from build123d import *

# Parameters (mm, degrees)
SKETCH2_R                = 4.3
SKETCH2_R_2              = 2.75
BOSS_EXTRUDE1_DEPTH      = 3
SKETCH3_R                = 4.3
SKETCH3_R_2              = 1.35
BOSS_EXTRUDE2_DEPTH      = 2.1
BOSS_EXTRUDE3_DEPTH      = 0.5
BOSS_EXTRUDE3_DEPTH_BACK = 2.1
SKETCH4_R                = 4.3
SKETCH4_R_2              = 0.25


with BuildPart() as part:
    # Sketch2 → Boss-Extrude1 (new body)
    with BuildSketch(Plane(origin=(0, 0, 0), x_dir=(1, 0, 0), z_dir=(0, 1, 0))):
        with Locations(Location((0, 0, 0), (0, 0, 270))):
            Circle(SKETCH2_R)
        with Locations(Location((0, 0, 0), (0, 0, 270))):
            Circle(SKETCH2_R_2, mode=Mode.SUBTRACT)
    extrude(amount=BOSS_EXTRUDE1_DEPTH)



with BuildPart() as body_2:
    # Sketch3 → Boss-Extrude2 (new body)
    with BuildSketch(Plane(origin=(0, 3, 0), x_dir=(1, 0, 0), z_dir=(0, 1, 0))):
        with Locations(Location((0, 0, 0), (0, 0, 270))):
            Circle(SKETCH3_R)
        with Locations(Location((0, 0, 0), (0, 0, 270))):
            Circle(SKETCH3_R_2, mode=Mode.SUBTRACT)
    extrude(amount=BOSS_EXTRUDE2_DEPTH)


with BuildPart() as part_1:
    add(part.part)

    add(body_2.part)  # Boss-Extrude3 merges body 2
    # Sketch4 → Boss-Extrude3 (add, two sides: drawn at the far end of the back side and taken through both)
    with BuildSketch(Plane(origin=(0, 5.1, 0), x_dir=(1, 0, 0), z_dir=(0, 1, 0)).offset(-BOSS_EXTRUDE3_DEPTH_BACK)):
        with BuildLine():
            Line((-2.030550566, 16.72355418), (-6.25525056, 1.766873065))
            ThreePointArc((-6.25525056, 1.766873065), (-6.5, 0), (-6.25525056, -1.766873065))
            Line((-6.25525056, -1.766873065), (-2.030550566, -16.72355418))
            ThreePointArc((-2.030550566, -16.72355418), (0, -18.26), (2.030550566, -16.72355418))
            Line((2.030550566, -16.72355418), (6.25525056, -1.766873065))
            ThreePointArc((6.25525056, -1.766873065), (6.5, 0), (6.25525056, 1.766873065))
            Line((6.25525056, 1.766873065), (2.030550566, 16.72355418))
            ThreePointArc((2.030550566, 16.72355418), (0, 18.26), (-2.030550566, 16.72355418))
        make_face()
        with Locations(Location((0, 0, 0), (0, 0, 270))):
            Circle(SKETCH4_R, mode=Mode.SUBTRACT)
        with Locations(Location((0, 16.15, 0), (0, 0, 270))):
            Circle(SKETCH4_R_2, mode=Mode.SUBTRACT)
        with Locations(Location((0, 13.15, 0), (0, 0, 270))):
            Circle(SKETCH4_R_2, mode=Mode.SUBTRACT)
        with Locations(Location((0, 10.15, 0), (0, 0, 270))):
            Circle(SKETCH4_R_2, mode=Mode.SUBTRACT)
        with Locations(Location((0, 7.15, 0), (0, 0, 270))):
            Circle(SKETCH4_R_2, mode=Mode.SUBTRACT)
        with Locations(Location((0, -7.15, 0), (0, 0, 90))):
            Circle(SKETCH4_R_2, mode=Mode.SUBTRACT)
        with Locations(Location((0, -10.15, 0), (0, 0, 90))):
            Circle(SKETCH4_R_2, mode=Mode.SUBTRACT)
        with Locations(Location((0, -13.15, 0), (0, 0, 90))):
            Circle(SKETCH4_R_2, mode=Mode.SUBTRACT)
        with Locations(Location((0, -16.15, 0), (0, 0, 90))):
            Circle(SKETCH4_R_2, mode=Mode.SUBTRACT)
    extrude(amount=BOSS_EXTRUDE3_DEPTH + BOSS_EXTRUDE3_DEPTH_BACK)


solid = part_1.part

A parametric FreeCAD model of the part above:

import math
import FreeCAD as App
import Part
import Sketcher

V = App.Vector
Q = App.Units.Quantity

doc = App.newDocument("Part")
body = doc.addObject("PartDesign::Body", "Body")

# Sketch on XZ plane
sketch1 = body.newObject("Sketcher::SketchObject", "Sketch")
sketch1.AttachmentSupport = (doc.getObject("XZ_Plane"), [""])
sketch1.MapMode = "FlatFace"
sketch1.addGeometry([
    Part.Circle(V(0, 0, 0), V(0, 0, 1), 4.3),
    Part.Circle(V(0, 0, 0), V(0, 0, 1), 2.8),
], False)
sketch1.addConstraint([
    Sketcher.Constraint("Coincident", 0, 3, -1, 1),
    Sketcher.Constraint("Coincident", 1, 3, -1, 1),
    Sketcher.Constraint("Diameter", 0, Q("8.6 mm")),
    Sketcher.Constraint("Diameter", 1, Q("5.5 mm")),
])
pad1 = body.newObject("PartDesign::Pad", "Pad")
pad1.Profile = sketch1
pad1.Length = 3
pad1.Reversed = True
body2 = doc.addObject("PartDesign::Body", "Body001")

# Sketch on XZ plane
sketch2 = body2.newObject("Sketcher::SketchObject", "Sketch001")
sketch2.AttachmentSupport = (doc.getObject("XZ_Plane001"), [""])
sketch2.MapMode = "FlatFace"
sketch2.AttachmentOffset = App.Placement(V(0, 0, -3), App.Rotation())
sketch2.addGeometry([
    Part.Circle(V(0, 0, 0), V(0, 0, 1), 4.3),
    Part.Circle(V(0, 0, 0), V(0, 0, 1), 1.4),
], False)
sketch2.addConstraint([
    Sketcher.Constraint("Coincident", 0, 3, -1, 1),
    Sketcher.Constraint("Coincident", 1, 3, -1, 1),
    Sketcher.Constraint("Diameter", 0, Q("8.6 mm")),
    Sketcher.Constraint("Diameter", 1, Q("2.7 mm")),
])
pad2 = body2.newObject("PartDesign::Pad", "Pad001")
pad2.Profile = sketch2
pad2.Length = 2.1
pad2.Reversed = True
doc.recompute()

boolean = body.newObject("PartDesign::Boolean", "Boolean")
boolean.Type = "Fuse"
boolean.addObjects([body2])

# Sketch on XZ plane
sketch3 = body.newObject("Sketcher::SketchObject", "Sketch002")
sketch3.AttachmentSupport = (doc.getObject("XZ_Plane"), [""])
sketch3.MapMode = "FlatFace"
sketch3.AttachmentOffset = App.Placement(V(0, 0, -5.1), App.Rotation())
sketch3.addGeometry([
    Part.LineSegment(V(-2.03, -16.72, 0), V(-6.26, -1.77, 0)),  # 0
    Part.ArcOfCircle(Part.Circle(V(0, 0, 0), V(0, 0, 1), 6.5), math.radians(164), math.radians(196)),  # 1
    Part.LineSegment(V(-6.26, 1.77, 0), V(-2.03, 16.72, 0)),  # 2
    Part.ArcOfCircle(Part.Circle(V(0, 16.15, 0), V(0, 0, 1), 2.11), math.radians(16), math.radians(164)),  # 3
    Part.LineSegment(V(2.03, 16.72, 0), V(6.26, 1.77, 0)),  # 4
    Part.ArcOfCircle(Part.Circle(V(0, 0, 0), V(0, 0, 1), 6.5), math.radians(-16), math.radians(16)),  # 5
    Part.LineSegment(V(6.26, -1.77, 0), V(2.03, -16.72, 0)),  # 6
    Part.ArcOfCircle(Part.Circle(V(0, -16.15, 0), V(0, 0, 1), 2.11), math.radians(-164), math.radians(-16)),  # 7
    Part.Circle(V(0, 16.15, 0), V(0, 0, 1), 0.25),  # 8
    Part.Circle(V(0, 13.15, 0), V(0, 0, 1), 0.25),  # 9
    Part.Circle(V(0, 10.15, 0), V(0, 0, 1), 0.25),  # 10
    Part.Circle(V(0, 7.15, 0), V(0, 0, 1), 0.25),  # 11
    Part.Circle(V(0, 0, 0), V(0, 0, 1), 4.3),  # 12
    Part.Circle(V(0, -7.15, 0), V(0, 0, 1), 0.25),  # 13
    Part.Circle(V(0, -10.15, 0), V(0, 0, 1), 0.25),  # 14
    Part.Circle(V(0, -13.15, 0), V(0, 0, 1), 0.25),  # 15
    Part.Circle(V(0, -16.15, 0), V(0, 0, 1), 0.25),  # 16
], False)
sketch3.addConstraint([
    Sketcher.Constraint("Tangent", 0, 2, 1, 2),
    Sketcher.Constraint("Tangent", 1, 1, 2, 1),
    Sketcher.Constraint("Tangent", 2, 2, 3, 2),
    Sketcher.Constraint("Tangent", 3, 1, 4, 1),
    Sketcher.Constraint("Tangent", 4, 2, 5, 2),
    Sketcher.Constraint("Tangent", 5, 1, 6, 1),
    Sketcher.Constraint("Tangent", 6, 2, 7, 2),
    Sketcher.Constraint("Tangent", 7, 1, 0, 1),
    Sketcher.Constraint("Coincident", 1, 3, -1, 1),
    Sketcher.Constraint("Coincident", 5, 3, -1, 1),
    Sketcher.Constraint("Coincident", 12, 3, -1, 1),
    Sketcher.Constraint("Coincident", 8, 3, 3, 3),
    Sketcher.Constraint("Coincident", 16, 3, 7, 3),
    Sketcher.Constraint("Equal", 1, 5),
    Sketcher.Constraint("Equal", 3, 7),
    Sketcher.Constraint("Equal", 8, 9),
    Sketcher.Constraint("Equal", 9, 10),
    Sketcher.Constraint("Equal", 10, 11),
    Sketcher.Constraint("Equal", 11, 13),
    Sketcher.Constraint("Equal", 13, 14),
    Sketcher.Constraint("Equal", 14, 15),
    Sketcher.Constraint("Equal", 15, 16),
    Sketcher.Constraint("Symmetric", 3, 3, 7, 3, -1, 1),
    Sketcher.Constraint("Symmetric", 11, 3, 13, 3, -1, 1),
    Sketcher.Constraint("Symmetric", 10, 3, 14, 3, -1, 1),
    Sketcher.Constraint("Symmetric", 9, 3, 15, 3, -1, 1),
    Sketcher.Constraint("PointOnObject", 3, 3, -2),
    Sketcher.Constraint("PointOnObject", 9, 3, -2),
    Sketcher.Constraint("PointOnObject", 10, 3, -2),
    Sketcher.Constraint("PointOnObject", 11, 3, -2),
    Sketcher.Constraint("Diameter", 8, Q("0.5 mm")),
    Sketcher.Constraint("Diameter", 12, Q("8.6 mm")),
    Sketcher.Constraint("Radius", 1, Q("6.5 mm")),
    Sketcher.Constraint("Radius", 3, Q("2.11 mm")),
    Sketcher.Constraint("DistanceY", 9, 3, 3, 3, Q("3 mm")),
    Sketcher.Constraint("DistanceY", 10, 3, 9, 3, Q("3 mm")),
    Sketcher.Constraint("DistanceY", 11, 3, 10, 3, Q("3 mm")),
    Sketcher.Constraint("DistanceY", 7, 3, 3, 3, Q("32.3 mm")),
])
pad3 = body.newObject("PartDesign::Pad", "Pad002")
pad3.Profile = sketch3
pad3.Type = "TwoLengths"
pad3.Length = 0.5
pad3.Length2 = 2.1
pad3.Reversed = True

doc.recompute()
